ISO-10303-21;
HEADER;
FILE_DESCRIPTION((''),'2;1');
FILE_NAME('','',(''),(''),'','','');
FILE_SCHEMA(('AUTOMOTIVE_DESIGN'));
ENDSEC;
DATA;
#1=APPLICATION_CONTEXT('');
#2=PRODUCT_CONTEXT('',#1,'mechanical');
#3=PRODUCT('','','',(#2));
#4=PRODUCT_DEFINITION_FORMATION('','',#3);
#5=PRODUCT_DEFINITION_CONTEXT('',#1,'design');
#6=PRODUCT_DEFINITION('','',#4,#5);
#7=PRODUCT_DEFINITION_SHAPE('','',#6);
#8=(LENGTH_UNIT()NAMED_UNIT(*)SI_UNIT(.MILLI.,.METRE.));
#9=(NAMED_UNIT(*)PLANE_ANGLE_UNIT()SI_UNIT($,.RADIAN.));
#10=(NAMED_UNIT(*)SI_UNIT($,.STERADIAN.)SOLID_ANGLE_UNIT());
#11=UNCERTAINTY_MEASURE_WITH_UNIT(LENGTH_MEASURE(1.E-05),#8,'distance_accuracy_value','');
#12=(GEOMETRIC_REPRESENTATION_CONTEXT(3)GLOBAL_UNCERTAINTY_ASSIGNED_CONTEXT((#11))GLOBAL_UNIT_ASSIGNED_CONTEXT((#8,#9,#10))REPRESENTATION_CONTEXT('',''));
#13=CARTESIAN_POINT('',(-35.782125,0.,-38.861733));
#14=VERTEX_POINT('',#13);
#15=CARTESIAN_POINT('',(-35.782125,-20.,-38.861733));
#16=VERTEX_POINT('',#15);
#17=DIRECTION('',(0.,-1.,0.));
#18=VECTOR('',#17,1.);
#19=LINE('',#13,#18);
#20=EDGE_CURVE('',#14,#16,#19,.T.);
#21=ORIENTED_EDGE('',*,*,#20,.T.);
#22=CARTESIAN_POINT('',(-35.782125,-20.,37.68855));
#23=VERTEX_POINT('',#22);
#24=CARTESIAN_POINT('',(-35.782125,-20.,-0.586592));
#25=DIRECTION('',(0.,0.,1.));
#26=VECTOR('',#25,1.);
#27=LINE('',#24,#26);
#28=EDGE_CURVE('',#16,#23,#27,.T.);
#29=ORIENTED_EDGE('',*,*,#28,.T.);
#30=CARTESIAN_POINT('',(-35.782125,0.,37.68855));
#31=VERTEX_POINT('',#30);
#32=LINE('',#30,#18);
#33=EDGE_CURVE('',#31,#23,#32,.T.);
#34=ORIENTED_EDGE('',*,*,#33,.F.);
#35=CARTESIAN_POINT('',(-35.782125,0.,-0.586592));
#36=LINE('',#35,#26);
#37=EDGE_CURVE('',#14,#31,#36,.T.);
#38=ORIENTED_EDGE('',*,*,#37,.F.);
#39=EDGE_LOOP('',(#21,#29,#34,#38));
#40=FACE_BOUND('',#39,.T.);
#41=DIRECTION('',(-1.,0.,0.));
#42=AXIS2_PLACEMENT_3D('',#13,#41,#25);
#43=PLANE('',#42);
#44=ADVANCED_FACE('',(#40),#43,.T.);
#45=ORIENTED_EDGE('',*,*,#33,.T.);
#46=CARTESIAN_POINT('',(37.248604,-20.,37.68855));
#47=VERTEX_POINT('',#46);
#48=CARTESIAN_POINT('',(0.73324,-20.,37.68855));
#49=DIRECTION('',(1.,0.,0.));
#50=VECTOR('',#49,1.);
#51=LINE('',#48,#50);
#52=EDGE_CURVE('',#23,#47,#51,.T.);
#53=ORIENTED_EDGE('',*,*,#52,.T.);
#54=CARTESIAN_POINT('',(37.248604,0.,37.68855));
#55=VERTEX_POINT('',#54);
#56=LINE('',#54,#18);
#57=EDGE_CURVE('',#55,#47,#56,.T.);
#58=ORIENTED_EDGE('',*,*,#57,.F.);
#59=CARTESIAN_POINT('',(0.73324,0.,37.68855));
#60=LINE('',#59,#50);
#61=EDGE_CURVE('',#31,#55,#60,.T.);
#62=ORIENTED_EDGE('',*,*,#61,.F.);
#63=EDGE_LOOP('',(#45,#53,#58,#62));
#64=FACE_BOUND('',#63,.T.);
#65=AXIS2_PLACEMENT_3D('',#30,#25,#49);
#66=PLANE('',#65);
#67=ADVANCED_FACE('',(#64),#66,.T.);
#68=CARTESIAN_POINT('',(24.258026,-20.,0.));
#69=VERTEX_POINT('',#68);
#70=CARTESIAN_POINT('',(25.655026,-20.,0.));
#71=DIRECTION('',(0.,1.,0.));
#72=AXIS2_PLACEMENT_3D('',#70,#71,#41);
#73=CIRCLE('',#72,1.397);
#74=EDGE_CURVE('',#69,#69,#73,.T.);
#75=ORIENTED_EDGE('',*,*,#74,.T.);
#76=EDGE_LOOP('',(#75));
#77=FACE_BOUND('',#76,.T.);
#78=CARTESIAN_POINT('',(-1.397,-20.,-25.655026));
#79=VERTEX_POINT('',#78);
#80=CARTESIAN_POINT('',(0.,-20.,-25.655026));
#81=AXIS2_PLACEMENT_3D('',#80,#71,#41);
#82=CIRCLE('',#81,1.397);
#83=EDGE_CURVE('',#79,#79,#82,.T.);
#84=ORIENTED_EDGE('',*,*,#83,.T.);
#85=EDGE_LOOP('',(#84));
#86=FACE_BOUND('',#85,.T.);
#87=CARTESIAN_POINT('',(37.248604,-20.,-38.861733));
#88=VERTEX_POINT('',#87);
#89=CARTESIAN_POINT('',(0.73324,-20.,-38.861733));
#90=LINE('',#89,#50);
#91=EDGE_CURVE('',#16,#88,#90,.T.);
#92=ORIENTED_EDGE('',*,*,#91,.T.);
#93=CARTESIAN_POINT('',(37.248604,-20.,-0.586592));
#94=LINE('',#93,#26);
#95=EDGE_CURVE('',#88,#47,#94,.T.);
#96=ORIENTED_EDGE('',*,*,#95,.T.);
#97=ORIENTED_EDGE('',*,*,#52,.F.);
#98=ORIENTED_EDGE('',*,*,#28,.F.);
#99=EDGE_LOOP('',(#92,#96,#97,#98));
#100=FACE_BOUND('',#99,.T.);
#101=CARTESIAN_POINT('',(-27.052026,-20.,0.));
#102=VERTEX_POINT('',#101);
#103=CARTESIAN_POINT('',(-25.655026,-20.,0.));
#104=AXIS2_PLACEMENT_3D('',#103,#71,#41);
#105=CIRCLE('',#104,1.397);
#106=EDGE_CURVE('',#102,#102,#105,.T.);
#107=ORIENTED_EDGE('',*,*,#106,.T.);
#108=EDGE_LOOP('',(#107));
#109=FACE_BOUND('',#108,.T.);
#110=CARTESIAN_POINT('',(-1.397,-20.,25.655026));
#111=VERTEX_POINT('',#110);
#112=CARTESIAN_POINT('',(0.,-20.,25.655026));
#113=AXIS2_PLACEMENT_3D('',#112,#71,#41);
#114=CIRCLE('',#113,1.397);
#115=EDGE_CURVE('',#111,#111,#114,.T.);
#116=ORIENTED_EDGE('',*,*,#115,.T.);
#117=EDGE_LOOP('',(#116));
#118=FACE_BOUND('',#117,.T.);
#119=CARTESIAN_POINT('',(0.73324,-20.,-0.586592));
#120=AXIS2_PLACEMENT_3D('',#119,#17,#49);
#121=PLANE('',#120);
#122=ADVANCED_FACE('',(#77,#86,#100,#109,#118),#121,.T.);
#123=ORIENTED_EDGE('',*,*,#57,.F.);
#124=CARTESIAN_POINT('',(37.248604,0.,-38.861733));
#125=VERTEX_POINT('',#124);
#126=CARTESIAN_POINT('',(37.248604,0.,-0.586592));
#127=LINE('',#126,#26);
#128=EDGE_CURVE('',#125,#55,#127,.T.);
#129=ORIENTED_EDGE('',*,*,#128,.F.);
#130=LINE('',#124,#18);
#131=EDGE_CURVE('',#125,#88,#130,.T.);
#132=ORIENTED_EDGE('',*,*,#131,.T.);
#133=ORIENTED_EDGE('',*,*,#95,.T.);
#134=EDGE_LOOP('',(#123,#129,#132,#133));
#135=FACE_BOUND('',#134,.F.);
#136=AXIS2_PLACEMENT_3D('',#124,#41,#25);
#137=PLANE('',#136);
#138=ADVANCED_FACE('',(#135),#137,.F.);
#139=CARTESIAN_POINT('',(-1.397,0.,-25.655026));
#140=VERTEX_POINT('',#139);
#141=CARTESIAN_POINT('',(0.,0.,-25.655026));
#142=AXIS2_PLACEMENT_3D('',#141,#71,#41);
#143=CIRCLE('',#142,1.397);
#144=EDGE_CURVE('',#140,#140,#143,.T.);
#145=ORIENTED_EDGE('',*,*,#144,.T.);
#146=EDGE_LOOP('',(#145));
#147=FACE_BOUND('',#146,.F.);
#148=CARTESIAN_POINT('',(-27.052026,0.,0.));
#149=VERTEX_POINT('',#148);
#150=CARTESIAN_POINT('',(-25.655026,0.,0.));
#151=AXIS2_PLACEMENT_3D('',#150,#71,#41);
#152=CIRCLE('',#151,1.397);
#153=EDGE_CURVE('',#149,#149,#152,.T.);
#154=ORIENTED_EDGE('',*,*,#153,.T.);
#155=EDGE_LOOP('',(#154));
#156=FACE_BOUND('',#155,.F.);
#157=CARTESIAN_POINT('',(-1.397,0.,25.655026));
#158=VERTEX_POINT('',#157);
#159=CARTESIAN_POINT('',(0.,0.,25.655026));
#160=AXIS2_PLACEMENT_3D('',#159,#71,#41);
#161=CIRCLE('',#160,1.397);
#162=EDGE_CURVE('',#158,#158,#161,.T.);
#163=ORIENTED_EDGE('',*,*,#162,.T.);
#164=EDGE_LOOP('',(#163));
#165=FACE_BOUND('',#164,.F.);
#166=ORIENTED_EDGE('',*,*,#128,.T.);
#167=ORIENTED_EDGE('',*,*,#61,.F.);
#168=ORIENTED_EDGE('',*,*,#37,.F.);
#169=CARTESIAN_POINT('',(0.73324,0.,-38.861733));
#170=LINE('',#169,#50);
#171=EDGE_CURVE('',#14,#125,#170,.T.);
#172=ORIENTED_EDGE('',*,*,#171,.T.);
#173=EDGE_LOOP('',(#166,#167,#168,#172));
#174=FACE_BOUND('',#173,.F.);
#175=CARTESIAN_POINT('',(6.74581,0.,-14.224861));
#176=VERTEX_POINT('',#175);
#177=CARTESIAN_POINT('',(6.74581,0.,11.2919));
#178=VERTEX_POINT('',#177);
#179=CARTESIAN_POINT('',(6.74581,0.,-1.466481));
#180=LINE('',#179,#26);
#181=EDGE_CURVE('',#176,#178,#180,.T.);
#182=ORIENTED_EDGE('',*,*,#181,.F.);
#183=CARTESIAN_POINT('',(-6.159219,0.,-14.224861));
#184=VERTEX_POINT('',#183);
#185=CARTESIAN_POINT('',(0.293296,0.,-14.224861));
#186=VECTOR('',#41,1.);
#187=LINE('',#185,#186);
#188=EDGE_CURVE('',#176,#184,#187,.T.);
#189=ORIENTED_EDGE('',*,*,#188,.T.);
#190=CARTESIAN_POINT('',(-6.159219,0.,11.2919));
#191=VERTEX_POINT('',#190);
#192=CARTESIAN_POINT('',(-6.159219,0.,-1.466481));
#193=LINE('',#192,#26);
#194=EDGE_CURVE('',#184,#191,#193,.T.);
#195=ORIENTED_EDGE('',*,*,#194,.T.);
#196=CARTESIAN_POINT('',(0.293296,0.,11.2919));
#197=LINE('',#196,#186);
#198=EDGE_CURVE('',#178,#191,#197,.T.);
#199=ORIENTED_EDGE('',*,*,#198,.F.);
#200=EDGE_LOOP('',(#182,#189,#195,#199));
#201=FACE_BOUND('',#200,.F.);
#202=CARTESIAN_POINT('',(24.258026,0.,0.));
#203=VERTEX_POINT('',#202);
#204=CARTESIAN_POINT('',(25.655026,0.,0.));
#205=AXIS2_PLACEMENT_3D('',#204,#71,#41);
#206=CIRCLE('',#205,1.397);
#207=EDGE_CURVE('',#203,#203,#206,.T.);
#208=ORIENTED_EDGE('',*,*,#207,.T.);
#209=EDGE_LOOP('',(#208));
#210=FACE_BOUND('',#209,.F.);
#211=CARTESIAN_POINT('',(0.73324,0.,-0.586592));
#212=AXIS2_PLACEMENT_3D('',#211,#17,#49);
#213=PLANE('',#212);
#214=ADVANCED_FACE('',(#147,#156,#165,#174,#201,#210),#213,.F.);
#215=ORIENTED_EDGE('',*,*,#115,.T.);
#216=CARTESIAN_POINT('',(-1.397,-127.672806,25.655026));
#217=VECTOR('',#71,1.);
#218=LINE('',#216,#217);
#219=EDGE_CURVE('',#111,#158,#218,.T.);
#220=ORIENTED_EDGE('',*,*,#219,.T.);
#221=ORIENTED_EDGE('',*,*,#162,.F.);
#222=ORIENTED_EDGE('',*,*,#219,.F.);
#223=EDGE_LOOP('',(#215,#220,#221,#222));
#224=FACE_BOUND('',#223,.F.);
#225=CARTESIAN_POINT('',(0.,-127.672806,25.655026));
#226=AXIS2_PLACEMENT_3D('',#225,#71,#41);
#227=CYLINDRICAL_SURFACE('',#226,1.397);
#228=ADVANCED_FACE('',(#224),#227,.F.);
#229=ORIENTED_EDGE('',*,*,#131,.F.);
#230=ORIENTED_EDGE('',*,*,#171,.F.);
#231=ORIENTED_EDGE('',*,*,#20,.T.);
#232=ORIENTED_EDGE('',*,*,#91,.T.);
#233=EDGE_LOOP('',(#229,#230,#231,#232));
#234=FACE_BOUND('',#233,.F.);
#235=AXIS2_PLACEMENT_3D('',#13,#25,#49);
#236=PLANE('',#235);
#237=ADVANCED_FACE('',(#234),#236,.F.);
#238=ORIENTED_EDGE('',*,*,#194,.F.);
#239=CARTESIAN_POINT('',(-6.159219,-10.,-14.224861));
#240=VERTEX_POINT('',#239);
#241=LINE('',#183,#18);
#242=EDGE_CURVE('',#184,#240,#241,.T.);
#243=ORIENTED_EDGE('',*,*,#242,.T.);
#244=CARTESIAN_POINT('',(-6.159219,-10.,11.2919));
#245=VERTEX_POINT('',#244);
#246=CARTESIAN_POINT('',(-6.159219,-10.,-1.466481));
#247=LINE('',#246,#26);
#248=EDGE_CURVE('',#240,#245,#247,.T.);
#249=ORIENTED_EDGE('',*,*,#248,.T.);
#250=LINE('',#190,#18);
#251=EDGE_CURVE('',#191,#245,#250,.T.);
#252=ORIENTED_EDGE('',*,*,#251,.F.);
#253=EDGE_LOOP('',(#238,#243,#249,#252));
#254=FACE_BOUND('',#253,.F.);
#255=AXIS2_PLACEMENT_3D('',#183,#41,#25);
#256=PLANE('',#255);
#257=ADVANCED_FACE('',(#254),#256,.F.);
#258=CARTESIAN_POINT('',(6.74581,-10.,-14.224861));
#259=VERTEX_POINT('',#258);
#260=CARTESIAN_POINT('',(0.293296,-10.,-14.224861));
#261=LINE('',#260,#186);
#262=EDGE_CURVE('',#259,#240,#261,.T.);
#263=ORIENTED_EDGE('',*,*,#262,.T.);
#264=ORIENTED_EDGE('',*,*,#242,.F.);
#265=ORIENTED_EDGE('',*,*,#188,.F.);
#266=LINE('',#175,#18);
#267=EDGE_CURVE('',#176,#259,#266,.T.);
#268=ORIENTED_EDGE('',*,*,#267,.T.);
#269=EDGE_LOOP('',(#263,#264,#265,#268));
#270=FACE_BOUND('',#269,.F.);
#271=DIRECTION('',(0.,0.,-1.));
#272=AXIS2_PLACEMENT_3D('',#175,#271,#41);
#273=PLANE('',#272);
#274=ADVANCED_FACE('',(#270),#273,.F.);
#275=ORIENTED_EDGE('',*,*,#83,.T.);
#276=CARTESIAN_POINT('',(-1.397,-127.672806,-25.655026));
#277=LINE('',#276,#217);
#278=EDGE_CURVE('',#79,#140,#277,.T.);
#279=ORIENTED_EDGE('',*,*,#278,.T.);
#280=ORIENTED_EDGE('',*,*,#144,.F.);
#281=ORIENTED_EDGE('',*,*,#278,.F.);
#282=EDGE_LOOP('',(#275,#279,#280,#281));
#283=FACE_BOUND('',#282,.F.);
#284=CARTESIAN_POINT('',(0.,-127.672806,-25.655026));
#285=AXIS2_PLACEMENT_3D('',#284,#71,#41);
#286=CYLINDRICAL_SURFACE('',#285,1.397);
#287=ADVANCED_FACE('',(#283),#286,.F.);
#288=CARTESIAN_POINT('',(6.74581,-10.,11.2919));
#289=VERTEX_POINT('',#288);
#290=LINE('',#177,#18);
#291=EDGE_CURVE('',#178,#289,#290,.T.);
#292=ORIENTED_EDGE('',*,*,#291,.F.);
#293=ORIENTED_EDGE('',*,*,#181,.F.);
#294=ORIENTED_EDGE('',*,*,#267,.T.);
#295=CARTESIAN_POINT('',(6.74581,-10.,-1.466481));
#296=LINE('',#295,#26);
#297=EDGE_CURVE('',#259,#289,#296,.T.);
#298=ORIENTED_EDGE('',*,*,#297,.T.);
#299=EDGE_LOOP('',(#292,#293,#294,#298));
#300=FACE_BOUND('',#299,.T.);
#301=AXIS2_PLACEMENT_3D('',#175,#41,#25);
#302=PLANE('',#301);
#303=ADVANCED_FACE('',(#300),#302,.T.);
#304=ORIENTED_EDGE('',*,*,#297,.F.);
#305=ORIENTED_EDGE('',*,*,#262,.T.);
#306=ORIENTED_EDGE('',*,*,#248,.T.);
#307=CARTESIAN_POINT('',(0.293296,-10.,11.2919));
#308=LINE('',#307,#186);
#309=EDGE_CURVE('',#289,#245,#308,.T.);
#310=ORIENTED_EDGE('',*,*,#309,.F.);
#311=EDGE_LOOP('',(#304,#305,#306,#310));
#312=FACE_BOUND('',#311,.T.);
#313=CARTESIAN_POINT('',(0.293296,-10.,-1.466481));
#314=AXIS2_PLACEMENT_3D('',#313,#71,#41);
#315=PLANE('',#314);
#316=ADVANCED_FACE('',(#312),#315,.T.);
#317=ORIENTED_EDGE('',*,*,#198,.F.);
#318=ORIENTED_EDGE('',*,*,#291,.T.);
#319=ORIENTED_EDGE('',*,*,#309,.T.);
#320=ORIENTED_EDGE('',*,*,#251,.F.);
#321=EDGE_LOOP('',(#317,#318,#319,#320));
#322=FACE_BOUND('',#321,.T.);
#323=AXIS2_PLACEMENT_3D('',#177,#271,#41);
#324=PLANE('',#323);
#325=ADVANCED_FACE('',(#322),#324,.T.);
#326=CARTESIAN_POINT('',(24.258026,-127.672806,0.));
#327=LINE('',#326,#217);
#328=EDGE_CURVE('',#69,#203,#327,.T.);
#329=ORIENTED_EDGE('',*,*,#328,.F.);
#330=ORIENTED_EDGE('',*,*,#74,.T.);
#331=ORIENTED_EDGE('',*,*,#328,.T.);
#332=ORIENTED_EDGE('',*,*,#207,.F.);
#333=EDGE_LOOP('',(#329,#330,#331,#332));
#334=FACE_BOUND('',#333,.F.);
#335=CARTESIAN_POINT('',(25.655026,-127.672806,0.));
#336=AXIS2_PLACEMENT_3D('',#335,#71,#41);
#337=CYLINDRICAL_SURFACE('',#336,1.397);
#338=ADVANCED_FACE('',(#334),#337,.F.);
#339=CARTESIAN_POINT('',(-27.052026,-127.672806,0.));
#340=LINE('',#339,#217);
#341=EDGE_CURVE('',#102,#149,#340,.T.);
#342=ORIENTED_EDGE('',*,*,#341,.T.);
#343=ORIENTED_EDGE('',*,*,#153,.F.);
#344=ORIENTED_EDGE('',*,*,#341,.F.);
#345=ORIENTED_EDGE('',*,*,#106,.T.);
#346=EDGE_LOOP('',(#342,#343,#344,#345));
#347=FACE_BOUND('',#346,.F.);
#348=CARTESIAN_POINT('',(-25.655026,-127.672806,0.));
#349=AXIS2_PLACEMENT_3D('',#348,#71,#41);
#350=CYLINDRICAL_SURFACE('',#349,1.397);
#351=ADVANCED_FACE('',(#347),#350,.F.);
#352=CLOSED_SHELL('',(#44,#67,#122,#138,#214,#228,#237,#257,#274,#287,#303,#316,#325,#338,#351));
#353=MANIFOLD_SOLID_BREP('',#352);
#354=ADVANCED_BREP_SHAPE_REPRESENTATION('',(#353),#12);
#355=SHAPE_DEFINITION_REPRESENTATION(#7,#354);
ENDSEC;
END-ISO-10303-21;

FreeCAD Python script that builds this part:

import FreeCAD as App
import Part
import Sketcher

V = App.Vector
Q = App.Units.Quantity

doc = App.newDocument("Part")
body = doc.addObject("PartDesign::Body", "Body")

sketch1 = doc.addObject("Sketcher::SketchObject", "Sketch")
body.addObject(sketch1)
sketch1.AttachmentSupport = (doc.XZ_Plane, [""])
sketch1.MapMode = "FlatFace"
sketch1.addGeometry([
    Part.LineSegment(V(-35.782125, 37.68855, 0), V(-35.782125, -38.861733, 0)),
    Part.LineSegment(V(-35.782125, -38.861733, 0), V(37.248604, -38.861733, 0)),
    Part.LineSegment(V(37.248604, -38.861733, 0), V(37.248604, 37.68855, 0)),
    Part.LineSegment(V(37.248604, 37.68855, 0), V(-35.782125, 37.68855, 0)),
], False)
sketch1.addConstraint([
    Sketcher.Constraint("Coincident", 0, 2, 1, 1),
    Sketcher.Constraint("Coincident", 1, 2, 2, 1),
    Sketcher.Constraint("Coincident", 2, 2, 3, 1),
    Sketcher.Constraint("Coincident", 3, 2, 0, 1),
    Sketcher.Constraint("Vertical", 0),
    Sketcher.Constraint("Horizontal", 1),
    Sketcher.Constraint("Vertical", 2),
    Sketcher.Constraint("Horizontal", 3),
    Sketcher.Constraint("DistanceX", 1, 1, 1, 2, Q("73.030729 mm")),
    Sketcher.Constraint("DistanceY", 0, 2, 0, 1, Q("76.550283 mm")),
    Sketcher.Constraint("DistanceY", -1, 1, 2, 2, Q("37.68855 mm")),
    Sketcher.Constraint("DistanceX", 0, 2, -1, 1, Q("35.782125 mm")),
])
pad1 = doc.addObject("PartDesign::Pad", "Pad")
body.addObject(pad1)
pad1.Profile = sketch1
pad1.Length = 20

sketch2 = doc.addObject("Sketcher::SketchObject", "Sketch001")
body.addObject(sketch2)
sketch2.AttachmentSupport = (doc.XZ_Plane, [""])
sketch2.MapMode = "FlatFace"
sketch2.addGeometry([
    Part.LineSegment(V(6.74581, 11.2919, 0), V(6.74581, -14.224861, 0)),
    Part.LineSegment(V(6.74581, -14.224861, 0), V(-6.159219, -14.224861, 0)),
    Part.LineSegment(V(-6.159219, -14.224861, 0), V(-6.159219, 11.2919, 0)),
    Part.LineSegment(V(-6.159219, 11.2919, 0), V(6.74581, 11.2919, 0)),
], False)
sketch2.addConstraint([
    Sketcher.Constraint("Coincident", 0, 2, 1, 1),
    Sketcher.Constraint("Coincident", 1, 2, 2, 1),
    Sketcher.Constraint("Coincident", 2, 2, 3, 1),
    Sketcher.Constraint("Coincident", 3, 2, 0, 1),
    Sketcher.Constraint("Vertical", 0),
    Sketcher.Constraint("Horizontal", 1),
    Sketcher.Constraint("Vertical", 2),
    Sketcher.Constraint("Horizontal", 3),
    Sketcher.Constraint("DistanceX", 1, 2, 1, 1, Q("12.905029 mm")),
    Sketcher.Constraint("DistanceY", 0, 2, 0, 1, Q("25.516761 mm")),
    Sketcher.Constraint("DistanceY", -1, 1, 2, 2, Q("11.2919 mm")),
    Sketcher.Constraint("DistanceX", -1, 1, 0, 2, Q("6.74581 mm")),
])
pocket1 = doc.addObject("PartDesign::Pocket", "Pocket")
body.addObject(pocket1)
pocket1.Profile = sketch2
pocket1.Length = 10
pocket1.Reversed = True

sketch3 = doc.addObject("Sketcher::SketchObject", "Sketch002")
body.addObject(sketch3)
sketch3.AttachmentSupport = (doc.XZ_Plane, [""])
sketch3.MapMode = "FlatFace"
sketch3.AttachmentOffset = App.Placement(V(0, 0, 20), App.Rotation())
sketch3.addGeometry([
    Part.Circle(V(0, 25.655026, 0), V(0, 0, 1), 1.397),
    Part.Circle(V(-25.655026, 0, 0), V(0, 0, 1), 1.397),
    Part.Circle(V(0, -25.655026, 0), V(0, 0, 1), 1.397),
    Part.Circle(V(25.655026, 0, 0), V(0, 0, 1), 1.397),
], False)
sketch3.addConstraint([
    Sketcher.Constraint("Equal", 0, 1),
    Sketcher.Constraint("Equal", 1, 2),
    Sketcher.Constraint("Equal", 2, 3),
    Sketcher.Constraint("Symmetric", 0, 3, 2, 3, -1, 1),
    Sketcher.Constraint("Symmetric", 1, 3, 3, 3, -1, 1),
    Sketcher.Constraint("PointOnObject", 0, 3, -2),
    Sketcher.Constraint("PointOnObject", 1, 3, -1),
    Sketcher.Constraint("Diameter", 0, Q("2.794 mm")),
    Sketcher.Constraint("DistanceY", 2, 3, 0, 3, Q("51.310051 mm")),
    Sketcher.Constraint("DistanceX", 1, 3, 3, 3, Q("51.310051 mm")),
])
doc.recompute()
hole = doc.addObject("PartDesign::Hole", "Hole")
body.addObject(hole)
hole.Profile = sketch3
hole.ThreadType = "None"
hole.Diameter = 2.794
hole.DepthType = "ThroughAll"

doc.recompute()
